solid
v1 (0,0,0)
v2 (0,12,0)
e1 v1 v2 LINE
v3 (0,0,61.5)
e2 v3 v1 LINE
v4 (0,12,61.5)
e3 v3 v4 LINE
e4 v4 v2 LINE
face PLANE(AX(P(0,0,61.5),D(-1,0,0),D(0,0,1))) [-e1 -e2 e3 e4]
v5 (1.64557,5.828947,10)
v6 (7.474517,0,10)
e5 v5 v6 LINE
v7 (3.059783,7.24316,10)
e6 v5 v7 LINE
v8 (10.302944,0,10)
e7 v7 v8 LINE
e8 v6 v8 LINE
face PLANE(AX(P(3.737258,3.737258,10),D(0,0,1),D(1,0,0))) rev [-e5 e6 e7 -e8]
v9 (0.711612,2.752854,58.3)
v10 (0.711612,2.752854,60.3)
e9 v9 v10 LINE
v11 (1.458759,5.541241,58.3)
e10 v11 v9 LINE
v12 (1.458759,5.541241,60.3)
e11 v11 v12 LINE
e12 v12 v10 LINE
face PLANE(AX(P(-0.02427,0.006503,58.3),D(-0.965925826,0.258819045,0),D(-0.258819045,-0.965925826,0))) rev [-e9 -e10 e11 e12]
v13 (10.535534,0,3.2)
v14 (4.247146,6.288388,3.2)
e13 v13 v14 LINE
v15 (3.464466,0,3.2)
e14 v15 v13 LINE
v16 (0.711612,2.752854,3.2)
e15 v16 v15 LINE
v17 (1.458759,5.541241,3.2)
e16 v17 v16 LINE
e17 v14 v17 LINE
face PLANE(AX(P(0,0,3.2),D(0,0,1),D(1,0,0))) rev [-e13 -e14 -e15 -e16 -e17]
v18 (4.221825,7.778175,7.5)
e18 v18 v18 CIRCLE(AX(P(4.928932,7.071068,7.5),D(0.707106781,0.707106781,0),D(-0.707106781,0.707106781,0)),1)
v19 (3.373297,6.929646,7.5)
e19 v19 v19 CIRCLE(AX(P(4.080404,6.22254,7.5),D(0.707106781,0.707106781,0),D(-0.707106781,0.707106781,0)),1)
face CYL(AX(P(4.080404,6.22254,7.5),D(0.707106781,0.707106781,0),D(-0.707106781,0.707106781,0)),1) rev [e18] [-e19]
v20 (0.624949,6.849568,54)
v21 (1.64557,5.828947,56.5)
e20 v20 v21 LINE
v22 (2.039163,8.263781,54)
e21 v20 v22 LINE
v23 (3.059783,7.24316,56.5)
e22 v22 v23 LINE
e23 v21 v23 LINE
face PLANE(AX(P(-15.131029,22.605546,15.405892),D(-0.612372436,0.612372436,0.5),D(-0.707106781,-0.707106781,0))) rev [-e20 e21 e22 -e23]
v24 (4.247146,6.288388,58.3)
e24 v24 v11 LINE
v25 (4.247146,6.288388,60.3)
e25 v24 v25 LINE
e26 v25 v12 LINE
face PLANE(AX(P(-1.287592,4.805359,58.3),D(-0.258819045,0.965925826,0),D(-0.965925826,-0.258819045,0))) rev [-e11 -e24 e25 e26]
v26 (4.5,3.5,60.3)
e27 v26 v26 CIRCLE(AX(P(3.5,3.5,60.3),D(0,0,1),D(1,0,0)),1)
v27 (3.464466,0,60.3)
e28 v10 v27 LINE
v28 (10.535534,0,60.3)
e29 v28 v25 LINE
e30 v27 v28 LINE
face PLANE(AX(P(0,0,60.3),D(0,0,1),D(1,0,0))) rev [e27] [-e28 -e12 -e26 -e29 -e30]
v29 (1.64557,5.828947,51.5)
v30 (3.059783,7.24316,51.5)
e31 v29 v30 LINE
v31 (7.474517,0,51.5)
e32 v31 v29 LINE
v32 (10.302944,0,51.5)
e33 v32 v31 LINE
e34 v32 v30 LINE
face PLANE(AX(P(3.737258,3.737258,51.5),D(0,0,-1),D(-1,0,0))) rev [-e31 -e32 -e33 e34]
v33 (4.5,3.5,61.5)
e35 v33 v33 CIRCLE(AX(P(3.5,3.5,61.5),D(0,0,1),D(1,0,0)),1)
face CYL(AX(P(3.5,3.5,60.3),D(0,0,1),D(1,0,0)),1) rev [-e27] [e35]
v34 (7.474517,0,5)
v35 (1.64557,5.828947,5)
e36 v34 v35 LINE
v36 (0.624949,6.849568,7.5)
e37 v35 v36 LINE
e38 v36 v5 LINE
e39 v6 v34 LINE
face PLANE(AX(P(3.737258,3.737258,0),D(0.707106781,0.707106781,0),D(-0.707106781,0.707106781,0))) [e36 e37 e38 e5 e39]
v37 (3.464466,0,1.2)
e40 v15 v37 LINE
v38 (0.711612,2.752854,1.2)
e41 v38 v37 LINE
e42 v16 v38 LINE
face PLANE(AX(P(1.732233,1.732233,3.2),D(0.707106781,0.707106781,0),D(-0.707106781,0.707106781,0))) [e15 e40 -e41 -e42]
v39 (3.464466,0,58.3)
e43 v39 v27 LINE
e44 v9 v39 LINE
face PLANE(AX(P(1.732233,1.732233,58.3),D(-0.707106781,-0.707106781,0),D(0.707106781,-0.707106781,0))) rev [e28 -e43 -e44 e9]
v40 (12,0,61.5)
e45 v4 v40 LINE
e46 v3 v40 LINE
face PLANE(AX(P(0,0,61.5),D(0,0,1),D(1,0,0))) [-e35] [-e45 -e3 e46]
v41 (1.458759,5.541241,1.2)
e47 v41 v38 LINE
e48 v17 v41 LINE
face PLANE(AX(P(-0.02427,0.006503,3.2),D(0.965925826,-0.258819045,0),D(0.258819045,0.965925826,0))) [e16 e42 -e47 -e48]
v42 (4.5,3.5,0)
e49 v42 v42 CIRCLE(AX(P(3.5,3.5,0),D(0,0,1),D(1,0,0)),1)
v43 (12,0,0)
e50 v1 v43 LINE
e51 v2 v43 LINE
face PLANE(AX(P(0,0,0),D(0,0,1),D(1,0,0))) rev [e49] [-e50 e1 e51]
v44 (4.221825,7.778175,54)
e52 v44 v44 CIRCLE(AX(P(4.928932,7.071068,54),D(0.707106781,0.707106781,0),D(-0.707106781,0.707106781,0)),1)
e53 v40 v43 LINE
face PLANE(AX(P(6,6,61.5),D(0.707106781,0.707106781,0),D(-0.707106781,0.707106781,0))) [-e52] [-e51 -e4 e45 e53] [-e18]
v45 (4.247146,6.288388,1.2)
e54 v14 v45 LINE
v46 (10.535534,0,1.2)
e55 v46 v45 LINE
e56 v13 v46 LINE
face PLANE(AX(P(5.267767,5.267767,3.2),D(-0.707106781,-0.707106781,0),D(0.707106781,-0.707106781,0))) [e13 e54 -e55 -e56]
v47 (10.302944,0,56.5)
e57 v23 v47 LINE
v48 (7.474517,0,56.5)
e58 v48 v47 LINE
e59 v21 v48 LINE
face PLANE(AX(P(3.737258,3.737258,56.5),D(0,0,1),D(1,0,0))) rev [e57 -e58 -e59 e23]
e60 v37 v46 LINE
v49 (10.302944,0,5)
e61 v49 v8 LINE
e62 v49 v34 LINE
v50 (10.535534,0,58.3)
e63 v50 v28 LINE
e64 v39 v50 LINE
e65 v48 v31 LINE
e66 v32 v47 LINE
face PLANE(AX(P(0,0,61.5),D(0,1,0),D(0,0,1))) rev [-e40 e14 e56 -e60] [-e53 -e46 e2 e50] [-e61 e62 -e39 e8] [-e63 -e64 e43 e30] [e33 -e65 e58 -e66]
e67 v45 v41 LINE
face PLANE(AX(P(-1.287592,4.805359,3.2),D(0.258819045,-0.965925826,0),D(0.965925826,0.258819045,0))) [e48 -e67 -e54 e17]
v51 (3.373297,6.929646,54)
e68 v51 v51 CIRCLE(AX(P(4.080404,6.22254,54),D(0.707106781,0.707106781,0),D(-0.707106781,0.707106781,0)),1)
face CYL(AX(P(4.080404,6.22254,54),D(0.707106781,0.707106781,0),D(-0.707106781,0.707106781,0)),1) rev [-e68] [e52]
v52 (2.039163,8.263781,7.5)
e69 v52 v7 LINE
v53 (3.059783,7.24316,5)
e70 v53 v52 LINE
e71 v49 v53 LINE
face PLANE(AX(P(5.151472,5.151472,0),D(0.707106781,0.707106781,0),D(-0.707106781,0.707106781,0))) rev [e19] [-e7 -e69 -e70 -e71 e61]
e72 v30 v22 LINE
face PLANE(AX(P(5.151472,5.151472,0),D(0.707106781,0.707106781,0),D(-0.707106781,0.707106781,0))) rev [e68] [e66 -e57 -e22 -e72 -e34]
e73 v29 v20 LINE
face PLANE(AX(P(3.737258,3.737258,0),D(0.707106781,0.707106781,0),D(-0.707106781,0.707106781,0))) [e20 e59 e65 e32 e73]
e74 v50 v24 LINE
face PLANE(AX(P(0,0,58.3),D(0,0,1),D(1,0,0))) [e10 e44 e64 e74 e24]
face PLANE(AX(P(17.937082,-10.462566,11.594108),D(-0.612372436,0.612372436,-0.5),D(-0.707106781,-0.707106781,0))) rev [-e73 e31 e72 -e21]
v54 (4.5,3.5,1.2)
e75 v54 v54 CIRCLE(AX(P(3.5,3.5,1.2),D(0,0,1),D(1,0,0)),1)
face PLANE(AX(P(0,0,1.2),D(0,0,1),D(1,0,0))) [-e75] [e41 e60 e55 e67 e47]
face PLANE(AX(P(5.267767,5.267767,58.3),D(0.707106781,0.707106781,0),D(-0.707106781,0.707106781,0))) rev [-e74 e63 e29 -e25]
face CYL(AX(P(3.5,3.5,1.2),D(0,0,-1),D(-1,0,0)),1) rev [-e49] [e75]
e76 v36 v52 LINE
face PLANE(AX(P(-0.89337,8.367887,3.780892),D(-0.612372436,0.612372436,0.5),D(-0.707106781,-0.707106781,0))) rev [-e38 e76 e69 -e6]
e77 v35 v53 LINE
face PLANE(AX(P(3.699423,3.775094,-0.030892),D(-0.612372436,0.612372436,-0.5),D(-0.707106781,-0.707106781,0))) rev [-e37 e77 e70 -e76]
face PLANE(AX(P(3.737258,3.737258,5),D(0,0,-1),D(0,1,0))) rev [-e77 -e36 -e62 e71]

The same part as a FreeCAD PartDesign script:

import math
import FreeCAD as App
import Part
import Sketcher
Q = App.Units.Quantity


def add_polygon(sketch, points):
    """Adds a closed chain of lines whose ends are joined by coincident constraints."""
    first, n = sketch.GeometryCount, len(points)
    for a, b in zip(points, points[1:] + points[:1]):
        sketch.addGeometry(Part.LineSegment(App.Vector(*a, 0), App.Vector(*b, 0)), False)
    for i in range(n):
        sketch.addConstraint(Sketcher.Constraint("Coincident", first + i, 2, first + (i + 1) % n, 1))

doc = App.newDocument("Part")
body = doc.addObject("PartDesign::Body", "Body")

# Sketch on XY plane
sketch1 = body.newObject("Sketcher::SketchObject", "Sketch")
sketch1.AttachmentSupport = (doc.getObject("XY_Plane"), [""])
sketch1.MapMode = "FlatFace"
add_polygon(sketch1, [(12, 0), (0, 12), (0, 0)])  # lines 0-2
sketch1.addConstraint([
    Sketcher.Constraint("Vertical", 1),
    Sketcher.Constraint("Horizontal", 2),
    Sketcher.Constraint("Coincident", 1, 2, -1, 1),
    Sketcher.Constraint("Equal", 2, 1),
    Sketcher.Constraint("DistanceX", 2, 1, 2, 2, Q("12 mm")),
])
pad1 = body.newObject("PartDesign::Pad", "Pad")
pad1.Profile = sketch1
pad1.Length = 61.5

# Sketch on XY plane
sketch2 = body.newObject("Sketcher::SketchObject", "Sketch001")
sketch2.AttachmentSupport = (doc.getObject("XY_Plane"), [""])
sketch2.MapMode = "FlatFace"
add_polygon(sketch2, [(10.535534, 0), (4.247146, 6.288388), (1.458759, 5.541241), (0.711612, 2.752854), (3.464466, 0)])  # lines 0-4
sketch2.addConstraint([
    Sketcher.Constraint("Horizontal", 4),
    Sketcher.Constraint("PointOnObject", 3, 2, -1),
    Sketcher.Constraint("Parallel", 0, 3),
    Sketcher.Constraint("Equal", 1, 2),
    Sketcher.Constraint("Angle", 0, Q("135 deg")),
    Sketcher.Constraint("Angle", 1, Q("-165 deg")),
    Sketcher.Constraint("Angle", 2, Q("-105 deg")),
    Sketcher.Constraint("Distance", 1, Q("2.886751 mm")),
    Sketcher.Constraint("DistanceX", -1, 1, 1, 2, Q("1.458759 mm")),
    Sketcher.Constraint("DistanceY", -1, 1, 1, 2, Q("5.541241 mm")),
])
pocket1 = body.newObject("PartDesign::Pocket", "Pocket")
pocket1.Profile = sketch2
pocket1.Length = 3.2
pocket1.Reversed = True

# Sketch on XY plane
sketch3 = body.newObject("Sketcher::SketchObject", "Sketch002")
sketch3.AttachmentSupport = (doc.getObject("XY_Plane"), [""])
sketch3.MapMode = "FlatFace"
add_polygon(sketch3, [(10.535534, 0), (4.247146, 6.288388), (1.458759, 5.541241), (0.711612, 2.752854), (3.464466, 0)])  # lines 0-4
sketch3.addGeometry(Part.Circle(App.Vector(3.5, 3.5, 0), App.Vector(0, 0, 1), 1), False)  # 5
sketch3.addConstraint([
    Sketcher.Constraint("Horizontal", 4),
    Sketcher.Constraint("PointOnObject", 3, 2, -1),
    Sketcher.Constraint("Parallel", 0, 3),
    Sketcher.Constraint("Equal", 1, 2),
    Sketcher.Constraint("Diameter", 5, Q("2 mm")),
    Sketcher.Constraint("Angle", 0, Q("135 deg")),
    Sketcher.Constraint("Angle", 1, Q("-165 deg")),
    Sketcher.Constraint("Angle", 2, Q("-105 deg")),
    Sketcher.Constraint("DistanceX", -1, 1, 5, 3, Q("3.5 mm")),
    Sketcher.Constraint("DistanceY", -1, 1, 5, 3, Q("3.5 mm")),
    Sketcher.Constraint("Distance", 1, Q("2.886751 mm")),
    Sketcher.Constraint("DistanceX", -1, 1, 1, 2, Q("1.458759 mm")),
    Sketcher.Constraint("DistanceY", -1, 1, 1, 2, Q("5.541241 mm")),
])
pad2 = body.newObject("PartDesign::Pad", "Pad001")
pad2.Profile = sketch3
pad2.Length = 1.2

# Sketch on XY plane
sketch4 = body.newObject("Sketcher::SketchObject", "Sketch003")
sketch4.AttachmentSupport = (doc.getObject("XY_Plane"), [""])
sketch4.MapMode = "FlatFace"
sketch4.AttachmentOffset = App.Placement(App.Vector(0, 0, 58.3), App.Rotation())
add_polygon(sketch4, [(4.247146, 6.288388), (1.458759, 5.541241), (0.711612, 2.752854), (3.464466, 0), (10.535534, 0)])  # lines 0-4
sketch4.addConstraint([
    Sketcher.Constraint("Horizontal", 3),
    Sketcher.Constraint("PointOnObject", 2, 2, -1),
    Sketcher.Constraint("Parallel", 2, 4),
    Sketcher.Constraint("Equal", 0, 1),
    Sketcher.Constraint("Angle", 0, Q("-165 deg")),
    Sketcher.Constraint("Angle", 1, Q("-105 deg")),
    Sketcher.Constraint("Angle", 2, Q("-45 deg")),
    Sketcher.Constraint("Distance", 0, Q("2.886751 mm")),
    Sketcher.Constraint("DistanceX", -1, 1, 0, 2, Q("1.458759 mm")),
    Sketcher.Constraint("DistanceY", -1, 1, 0, 2, Q("5.541241 mm")),
])
pocket2 = body.newObject("PartDesign::Pocket", "Pocket001")
pocket2.Profile = sketch4
pocket2.Length = 3.2
pocket2.Reversed = True

# Sketch on XY plane
sketch5 = body.newObject("Sketcher::SketchObject", "Sketch004")
sketch5.AttachmentSupport = (doc.getObject("XY_Plane"), [""])
sketch5.MapMode = "FlatFace"
sketch5.AttachmentOffset = App.Placement(App.Vector(0, 0, 60.3), App.Rotation())
add_polygon(sketch5, [(4.247146, 6.288388), (1.458759, 5.541241), (0.711612, 2.752854), (3.464466, 0), (10.535534, 0)])  # lines 0-4
sketch5.addGeometry(Part.Circle(App.Vector(3.5, 3.5, 0), App.Vector(0, 0, 1), 1), False)  # 5
sketch5.addConstraint([
    Sketcher.Constraint("Horizontal", 3),
    Sketcher.Constraint("PointOnObject", 2, 2, -1),
    Sketcher.Constraint("Parallel", 2, 4),
    Sketcher.Constraint("Equal", 0, 1),
    Sketcher.Constraint("Diameter", 5, Q("2 mm")),
    Sketcher.Constraint("Angle", 0, Q("-165 deg")),
    Sketcher.Constraint("Angle", 1, Q("-105 deg")),
    Sketcher.Constraint("Angle", 2, Q("-45 deg")),
    Sketcher.Constraint("DistanceX", -1, 1, 5, 3, Q("3.5 mm")),
    Sketcher.Constraint("DistanceY", -1, 1, 5, 3, Q("3.5 mm")),
    Sketcher.Constraint("Distance", 0, Q("2.886751 mm")),
    Sketcher.Constraint("DistanceX", -1, 1, 0, 2, Q("1.458759 mm")),
    Sketcher.Constraint("DistanceY", -1, 1, 0, 2, Q("5.541241 mm")),
])
pad3 = body.newObject("PartDesign::Pad", "Pad002")
pad3.Profile = sketch5
pad3.Length = 1.2

# Sketch on an angled plane
sketch6 = body.newObject("Sketcher::SketchObject", "Sketch005")
sketch6.Placement = App.Placement(App.Vector(6, 6, 0), App.Rotation(App.Vector(0, 0, -1), App.Vector(-0.707106781, 0.707106781, 0), App.Vector(0.707106781, 0.707106781, 0), "ZXY"))
add_polygon(sketch6, [(-51.5, 2.958094), (-54, 4.40147), (-56.5, 2.958094), (-56.5, -8.485281), (-51.5, -8.485281)])  # lines 0-4
add_polygon(sketch6, [(-5, -8.485281), (-5, 2.958094), (-7.5, 4.40147), (-10, 2.958094), (-10, -8.485281)])  # lines 5-9
sketch6.addConstraint([
    Sketcher.Constraint("Vertical", 2),
    Sketcher.Constraint("Horizontal", 3),
    Sketcher.Constraint("Vertical", 4),
    Sketcher.Constraint("Vertical", 5),
    Sketcher.Constraint("Vertical", 8),
    Sketcher.Constraint("Horizontal", 9),
    Sketcher.Constraint("Parallel", 0, 6),
    Sketcher.Constraint("Parallel", 1, 7),
    Sketcher.Constraint("Horizontal", 1, 2, 4, 2),
    Sketcher.Constraint("Horizontal", 4, 2, 5, 2),
    Sketcher.Constraint("Horizontal", 0, 2, 6, 2),
    Sketcher.Constraint("Horizontal", 5, 2, 7, 2),
    Sketcher.Constraint("Horizontal", 3, 2, 8, 2),
    Sketcher.Constraint("Equal", 0, 1),
    Sketcher.Constraint("DistanceX", 3, 1, 3, 2, Q("5 mm")),
    Sketcher.Constraint("Angle", 0, Q("150 deg")),
    Sketcher.Constraint("DistanceX", 0, 2, -1, 1, Q("54 mm")),
    Sketcher.Constraint("DistanceX", 5, 2, -1, 1, Q("5 mm")),
    Sketcher.Constraint("DistanceY", 2, 2, 2, 1, Q("11.443376 mm")),
    Sketcher.Constraint("DistanceY", -1, 1, 0, 2, Q("4.40147 mm")),
])
pocket3 = body.newObject("PartDesign::Pocket", "Pocket002")
pocket3.Profile = sketch6
pocket3.Length = 3.2

# Sketch on an angled plane
sketch7 = body.newObject("Sketcher::SketchObject", "Sketch006")
sketch7.Placement = App.Placement(App.Vector(6, 6, 0), App.Rotation(App.Vector(0, 0, -1), App.Vector(-0.707106781, 0.707106781, 0), App.Vector(0.707106781, 0.707106781, 0), "ZXY"))
add_polygon(sketch7, [(-51.5, 2.958094), (-54, 4.40147), (-56.5, 2.958094), (-56.5, -8.485281), (-51.5, -8.485281)])  # lines 0-4
sketch7.addGeometry(Part.ArcOfCircle(Part.Circle(App.Vector(-54, 1.514719, 0), App.Vector(0, 0, 1), 1), math.radians(0), math.radians(180)), False)  # 5
sketch7.addGeometry(Part.ArcOfCircle(Part.Circle(App.Vector(-54, 1.514719, 0), App.Vector(0, 0, 1), 1), math.radians(-90), math.radians(0)), False)  # 6
sketch7.addGeometry(Part.ArcOfCircle(Part.Circle(App.Vector(-54, 1.514719, 0), App.Vector(0, 0, 1), 1), math.radians(-180), math.radians(-90)), False)  # 7
add_polygon(sketch7, [(-5, 2.958094), (-7.5, 4.40147), (-10, 2.958094), (-10, -8.485281), (-5, -8.485281)])  # lines 8-12
sketch7.addGeometry(Part.ArcOfCircle(Part.Circle(App.Vector(-7.5, 1.514719, 0), App.Vector(0, 0, 1), 1), math.radians(0), math.radians(270)), False)  # 13
sketch7.addGeometry(Part.ArcOfCircle(Part.Circle(App.Vector(-7.5, 1.514719, 0), App.Vector(0, 0, 1), 1), math.radians(-90), math.radians(0)), False)  # 14
sketch7.addConstraint([
    Sketcher.Constraint("Tangent", 5, 1, 6, 2),
    Sketcher.Constraint("Tangent", 6, 1, 7, 2),
    Sketcher.Constraint("Tangent", 7, 1, 5, 2),
    Sketcher.Constraint("Tangent", 13, 1, 14, 2),
    Sketcher.Constraint("Coincident", 14, 1, 13, 2),
    Sketcher.Constraint("Vertical", 2),
    Sketcher.Constraint("Horizontal", 3),
    Sketcher.Constraint("Vertical", 4),
    Sketcher.Constraint("Vertical", 10),
    Sketcher.Constraint("Horizontal", 11),
    Sketcher.Constraint("Vertical", 12),
    Sketcher.Constraint("Equal", 7, 13),
    Sketcher.Constraint("Parallel", 0, 8),
    Sketcher.Constraint("Parallel", 1, 9),
    Sketcher.Constraint("Horizontal", 7, 3, 13, 3),
    Sketcher.Constraint("Horizontal", 1, 2, 4, 2),
    Sketcher.Constraint("Horizontal", 14, 3, 5, 1),
    Sketcher.Constraint("Horizontal", 5, 1, 7, 1),
    Sketcher.Constraint("Horizontal", 0, 2, 8, 2),
    Sketcher.Constraint("Horizontal", 4, 2, 9, 2),
    Sketcher.Constraint("Horizontal", 3, 2, 10, 2),
    Sketcher.Constraint("Horizontal", 9, 2, 12, 2),
    Sketcher.Constraint("Horizontal", 7, 1, 13, 1),
    Sketcher.Constraint("Vertical", 7, 3, 0, 2),
    Sketcher.Constraint("Vertical", 0, 2, 6, 1),
    Sketcher.Constraint("Vertical", 14, 3, 8, 2),
    Sketcher.Constraint("Vertical", 8, 2, 14, 1),
    Sketcher.Constraint("Equal", 0, 1),
    Sketcher.Constraint("Radius", 5, Q("1 mm")),
    Sketcher.Constraint("DistanceX", 3, 1, 3, 2, Q("5 mm")),
    Sketcher.Constraint("Angle", 0, Q("150 deg")),
    Sketcher.Constraint("DistanceX", 5, 3, -1, 1, Q("54 mm")),
    Sketcher.Constraint("DistanceX", 9, 2, -1, 1, Q("10 mm")),
    Sketcher.Constraint("DistanceY", 2, 2, 5, 3, Q("10 mm")),
    Sketcher.Constraint("DistanceY", 2, 2, 2, 1, Q("11.443376 mm")),
    Sketcher.Constraint("DistanceY", -1, 1, 5, 3, Q("1.514719 mm")),
])
pad4 = body.newObject("PartDesign::Pad", "Pad003")
pad4.Profile = sketch7
pad4.Length = 1.2
pad4.Reversed = True

# Sketch on XY plane
sketch8 = body.newObject("Sketcher::SketchObject", "Sketch007")
sketch8.AttachmentSupport = (doc.getObject("XY_Plane"), [""])
sketch8.MapMode = "FlatFace"
add_polygon(sketch8, [(12, -2.237435), (12, 0), (0, 0), (0, -2.237435)])  # lines 0-3
sketch8.addConstraint([
    Sketcher.Constraint("Vertical", 0),
    Sketcher.Constraint("Horizontal", 1),
    Sketcher.Constraint("Vertical", 2),
    Sketcher.Constraint("Horizontal", 3),
    Sketcher.Constraint("Coincident", 1, 2, -1, 1),
    Sketcher.Constraint("DistanceX", 1, 2, 1, 1, Q("12 mm")),
    Sketcher.Constraint("DistanceY", 0, 1, 0, 2, Q("2.237435 mm")),
])
pocket4 = body.newObject("PartDesign::Pocket", "Pocket003")
pocket4.Profile = sketch8
pocket4.Type = "ThroughAll"
pocket4.Reversed = True

doc.recompute()
